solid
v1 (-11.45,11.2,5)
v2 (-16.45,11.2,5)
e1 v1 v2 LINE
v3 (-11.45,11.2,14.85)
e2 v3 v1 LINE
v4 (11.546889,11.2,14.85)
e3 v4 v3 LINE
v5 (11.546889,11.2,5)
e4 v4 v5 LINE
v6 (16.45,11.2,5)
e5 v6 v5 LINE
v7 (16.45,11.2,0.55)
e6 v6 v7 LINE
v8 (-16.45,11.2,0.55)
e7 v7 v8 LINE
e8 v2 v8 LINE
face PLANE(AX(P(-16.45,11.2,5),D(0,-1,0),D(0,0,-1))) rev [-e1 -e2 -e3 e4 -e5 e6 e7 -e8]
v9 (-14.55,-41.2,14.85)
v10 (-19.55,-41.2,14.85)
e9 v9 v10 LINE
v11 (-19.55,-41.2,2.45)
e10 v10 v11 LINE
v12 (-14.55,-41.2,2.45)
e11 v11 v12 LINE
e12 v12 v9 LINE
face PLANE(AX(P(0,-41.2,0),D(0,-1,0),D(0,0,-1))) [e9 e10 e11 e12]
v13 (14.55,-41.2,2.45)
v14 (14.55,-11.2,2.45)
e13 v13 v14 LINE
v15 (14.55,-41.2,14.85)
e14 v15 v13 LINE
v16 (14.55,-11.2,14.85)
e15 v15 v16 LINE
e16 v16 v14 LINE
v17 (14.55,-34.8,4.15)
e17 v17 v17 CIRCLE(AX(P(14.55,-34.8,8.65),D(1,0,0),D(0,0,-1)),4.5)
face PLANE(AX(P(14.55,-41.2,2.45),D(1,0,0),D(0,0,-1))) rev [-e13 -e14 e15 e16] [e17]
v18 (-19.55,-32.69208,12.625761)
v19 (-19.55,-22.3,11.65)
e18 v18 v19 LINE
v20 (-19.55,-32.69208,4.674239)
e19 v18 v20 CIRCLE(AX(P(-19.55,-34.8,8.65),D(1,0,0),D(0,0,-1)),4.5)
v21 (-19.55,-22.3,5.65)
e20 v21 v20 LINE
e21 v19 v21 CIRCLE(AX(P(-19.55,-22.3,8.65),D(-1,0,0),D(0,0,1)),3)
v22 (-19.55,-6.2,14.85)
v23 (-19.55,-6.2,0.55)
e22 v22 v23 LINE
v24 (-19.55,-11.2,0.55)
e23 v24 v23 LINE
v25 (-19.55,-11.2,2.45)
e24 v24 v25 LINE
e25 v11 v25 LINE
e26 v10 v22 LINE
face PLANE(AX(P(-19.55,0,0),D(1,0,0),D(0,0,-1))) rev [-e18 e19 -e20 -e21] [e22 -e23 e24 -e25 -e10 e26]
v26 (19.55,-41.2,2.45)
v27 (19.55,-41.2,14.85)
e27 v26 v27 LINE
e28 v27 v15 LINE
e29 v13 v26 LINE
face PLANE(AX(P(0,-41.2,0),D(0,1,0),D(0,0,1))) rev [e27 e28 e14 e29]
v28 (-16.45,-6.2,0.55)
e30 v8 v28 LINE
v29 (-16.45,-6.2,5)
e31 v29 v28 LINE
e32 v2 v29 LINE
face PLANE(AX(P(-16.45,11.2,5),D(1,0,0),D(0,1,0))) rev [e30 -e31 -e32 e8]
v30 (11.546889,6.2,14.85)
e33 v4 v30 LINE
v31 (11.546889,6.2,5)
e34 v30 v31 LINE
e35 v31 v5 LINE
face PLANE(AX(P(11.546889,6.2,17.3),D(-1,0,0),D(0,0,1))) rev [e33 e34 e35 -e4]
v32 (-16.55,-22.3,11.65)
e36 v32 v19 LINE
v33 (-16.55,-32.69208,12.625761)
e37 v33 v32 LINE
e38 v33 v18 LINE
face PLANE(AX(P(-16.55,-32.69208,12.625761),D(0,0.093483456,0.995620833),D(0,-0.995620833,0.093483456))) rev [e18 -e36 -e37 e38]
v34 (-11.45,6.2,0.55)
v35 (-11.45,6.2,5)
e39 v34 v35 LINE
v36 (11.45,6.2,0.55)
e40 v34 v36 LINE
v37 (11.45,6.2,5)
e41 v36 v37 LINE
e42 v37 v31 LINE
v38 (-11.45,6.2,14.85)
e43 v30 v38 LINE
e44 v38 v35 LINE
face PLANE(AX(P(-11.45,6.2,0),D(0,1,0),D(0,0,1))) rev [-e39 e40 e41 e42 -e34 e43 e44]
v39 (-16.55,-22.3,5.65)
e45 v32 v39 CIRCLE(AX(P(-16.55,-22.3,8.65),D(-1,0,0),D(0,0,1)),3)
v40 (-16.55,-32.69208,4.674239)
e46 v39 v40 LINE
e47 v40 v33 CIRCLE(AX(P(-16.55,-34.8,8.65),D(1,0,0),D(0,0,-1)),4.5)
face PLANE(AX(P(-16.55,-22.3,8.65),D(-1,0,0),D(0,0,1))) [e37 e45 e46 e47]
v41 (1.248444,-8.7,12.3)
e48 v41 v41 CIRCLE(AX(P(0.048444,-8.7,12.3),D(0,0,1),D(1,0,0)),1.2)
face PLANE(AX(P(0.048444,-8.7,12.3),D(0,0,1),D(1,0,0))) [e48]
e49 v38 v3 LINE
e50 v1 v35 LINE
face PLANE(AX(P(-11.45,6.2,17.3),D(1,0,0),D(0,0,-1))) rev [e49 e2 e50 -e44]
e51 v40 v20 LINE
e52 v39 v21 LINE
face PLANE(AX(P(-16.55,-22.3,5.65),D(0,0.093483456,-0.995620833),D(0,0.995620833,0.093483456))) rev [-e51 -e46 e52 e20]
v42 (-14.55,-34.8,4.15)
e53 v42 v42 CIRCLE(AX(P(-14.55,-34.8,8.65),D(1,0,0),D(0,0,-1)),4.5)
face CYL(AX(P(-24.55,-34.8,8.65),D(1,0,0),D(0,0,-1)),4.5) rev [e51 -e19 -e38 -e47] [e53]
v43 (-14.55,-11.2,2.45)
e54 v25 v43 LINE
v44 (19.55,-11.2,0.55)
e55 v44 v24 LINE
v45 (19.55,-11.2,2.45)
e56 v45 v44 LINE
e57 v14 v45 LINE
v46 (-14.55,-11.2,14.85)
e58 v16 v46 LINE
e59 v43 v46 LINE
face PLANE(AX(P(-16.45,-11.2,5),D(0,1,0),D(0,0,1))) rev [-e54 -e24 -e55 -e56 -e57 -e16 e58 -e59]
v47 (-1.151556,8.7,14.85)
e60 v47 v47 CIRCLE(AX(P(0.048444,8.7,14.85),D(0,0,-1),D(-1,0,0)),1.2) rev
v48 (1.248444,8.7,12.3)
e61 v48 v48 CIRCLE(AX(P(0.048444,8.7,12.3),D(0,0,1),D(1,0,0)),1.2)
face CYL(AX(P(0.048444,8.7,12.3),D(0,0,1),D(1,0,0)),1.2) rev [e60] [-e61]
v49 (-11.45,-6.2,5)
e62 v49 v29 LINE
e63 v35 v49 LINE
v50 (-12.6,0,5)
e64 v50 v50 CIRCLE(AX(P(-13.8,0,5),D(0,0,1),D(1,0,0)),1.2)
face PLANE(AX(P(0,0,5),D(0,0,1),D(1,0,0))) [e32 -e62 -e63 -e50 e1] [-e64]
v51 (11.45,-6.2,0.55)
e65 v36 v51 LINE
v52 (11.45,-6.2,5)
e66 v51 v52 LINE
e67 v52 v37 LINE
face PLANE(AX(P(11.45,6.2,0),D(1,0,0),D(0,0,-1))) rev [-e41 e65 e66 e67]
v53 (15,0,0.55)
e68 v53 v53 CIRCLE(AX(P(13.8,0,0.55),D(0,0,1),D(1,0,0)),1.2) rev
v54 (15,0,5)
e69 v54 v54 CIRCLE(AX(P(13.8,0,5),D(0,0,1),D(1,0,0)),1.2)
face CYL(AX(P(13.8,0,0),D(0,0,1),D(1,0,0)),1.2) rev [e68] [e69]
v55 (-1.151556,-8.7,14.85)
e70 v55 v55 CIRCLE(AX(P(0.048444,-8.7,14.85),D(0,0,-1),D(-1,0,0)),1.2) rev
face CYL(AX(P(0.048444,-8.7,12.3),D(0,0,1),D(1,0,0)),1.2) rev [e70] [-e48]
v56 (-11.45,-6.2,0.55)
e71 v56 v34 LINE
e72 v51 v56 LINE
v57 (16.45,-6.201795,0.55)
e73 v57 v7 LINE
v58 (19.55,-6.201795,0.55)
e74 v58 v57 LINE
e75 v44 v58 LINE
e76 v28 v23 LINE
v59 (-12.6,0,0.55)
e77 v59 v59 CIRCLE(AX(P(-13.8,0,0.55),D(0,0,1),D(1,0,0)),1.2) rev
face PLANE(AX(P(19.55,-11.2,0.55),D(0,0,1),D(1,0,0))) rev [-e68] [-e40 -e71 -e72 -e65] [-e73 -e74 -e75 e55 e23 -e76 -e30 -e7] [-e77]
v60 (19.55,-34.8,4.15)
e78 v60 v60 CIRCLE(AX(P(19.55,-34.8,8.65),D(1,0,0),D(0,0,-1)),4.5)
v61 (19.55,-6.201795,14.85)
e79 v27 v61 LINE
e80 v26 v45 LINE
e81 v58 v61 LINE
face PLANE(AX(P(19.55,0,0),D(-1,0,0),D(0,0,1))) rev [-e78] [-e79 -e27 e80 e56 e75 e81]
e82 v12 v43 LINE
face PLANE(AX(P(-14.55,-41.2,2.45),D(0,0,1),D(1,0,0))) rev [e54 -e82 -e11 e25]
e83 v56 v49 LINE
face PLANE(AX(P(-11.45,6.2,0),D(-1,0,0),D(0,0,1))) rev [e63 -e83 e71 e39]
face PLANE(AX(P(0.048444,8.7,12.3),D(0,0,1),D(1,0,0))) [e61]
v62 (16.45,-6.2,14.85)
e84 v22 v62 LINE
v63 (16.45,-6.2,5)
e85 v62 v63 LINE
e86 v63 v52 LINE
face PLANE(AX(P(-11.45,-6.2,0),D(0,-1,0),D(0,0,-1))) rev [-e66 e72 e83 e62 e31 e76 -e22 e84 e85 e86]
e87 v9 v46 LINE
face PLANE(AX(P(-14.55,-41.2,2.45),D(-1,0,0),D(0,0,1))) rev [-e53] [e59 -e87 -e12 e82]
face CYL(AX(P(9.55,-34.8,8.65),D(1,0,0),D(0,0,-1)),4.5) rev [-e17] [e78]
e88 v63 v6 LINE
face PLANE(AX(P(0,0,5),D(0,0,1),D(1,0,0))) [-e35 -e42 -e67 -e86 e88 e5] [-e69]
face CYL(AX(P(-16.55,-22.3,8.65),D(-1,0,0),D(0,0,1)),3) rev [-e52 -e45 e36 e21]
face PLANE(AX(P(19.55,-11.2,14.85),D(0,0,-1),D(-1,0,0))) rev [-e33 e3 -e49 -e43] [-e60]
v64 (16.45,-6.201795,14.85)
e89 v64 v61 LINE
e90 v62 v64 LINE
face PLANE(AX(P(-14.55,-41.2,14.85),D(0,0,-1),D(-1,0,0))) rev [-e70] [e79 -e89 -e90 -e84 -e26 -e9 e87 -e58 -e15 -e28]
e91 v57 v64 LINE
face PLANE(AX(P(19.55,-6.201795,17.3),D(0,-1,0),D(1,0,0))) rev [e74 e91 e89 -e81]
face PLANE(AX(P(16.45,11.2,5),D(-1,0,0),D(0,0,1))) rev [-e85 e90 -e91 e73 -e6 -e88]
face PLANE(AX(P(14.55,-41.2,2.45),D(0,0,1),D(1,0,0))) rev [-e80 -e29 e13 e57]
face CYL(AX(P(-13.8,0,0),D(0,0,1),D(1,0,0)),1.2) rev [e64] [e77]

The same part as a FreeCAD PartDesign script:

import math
import FreeCAD as App
import Part
import Sketcher

V = App.Vector


def add_polygon(sketch, points):
    """Adds a closed chain of lines whose ends are joined by coincident constraints."""
    first, n = sketch.GeometryCount, len(points)
    for a, b in zip(points, points[1:] + points[:1]):
        sketch.addGeometry(Part.LineSegment(App.Vector(*a, 0), App.Vector(*b, 0)), False)
    for i in range(n):
        sketch.addConstraint(Sketcher.Constraint("Coincident", first + i, 2, first + (i + 1) % n, 1))

doc = App.newDocument("Part")
body = doc.addObject("PartDesign::Body", "Body")

sketch1 = body.newObject("Sketcher::SketchObject", "Sketch")
sketch1.AttachmentSupport = (doc.getObject("XY_Plane"), [""])
sketch1.MapMode = "FlatFace"
add_polygon(sketch1, [(-16.45, 11.2), (-16.45, -11.2), (16.45, -11.2), (16.45, 11.2)])
sketch1.addConstraint(Sketcher.Constraint("Vertical", 0))
sketch1.addConstraint(Sketcher.Constraint("Horizontal", 1))
sketch1.addConstraint(Sketcher.Constraint("Vertical", 2))
sketch1.addConstraint(Sketcher.Constraint("Horizontal", 3))
sketch1.addConstraint(Sketcher.Constraint("Symmetric", 0, 2, 2, 2, -1, 1))
sketch1.addConstraint(Sketcher.Constraint("DistanceX", 1, 1, 1, 2, 32.9))
sketch1.addConstraint(Sketcher.Constraint("DistanceY", 0, 2, 0, 1, 22.4))
pad1 = body.newObject("PartDesign::Pad", "Pad")
pad1.Profile = sketch1
pad1.Length = 5

sketch2 = body.newObject("Sketcher::SketchObject", "Sketch001")
sketch2.AttachmentSupport = (doc.getObject("XY_Plane"), [""])
sketch2.MapMode = "FlatFace"
sketch2.AttachmentOffset = App.Placement(V(0, 0, 5), App.Rotation())
sketch2.addGeometry(Part.Circle(V(13.8, 0, 0), V(0, 0, 1), 1.2), False)
sketch2.addGeometry(Part.Circle(V(-13.8, 0, 0), V(0, 0, 1), 1.2), False)
add_polygon(sketch2, [(-11.45, 6.2), (-11.45, -6.2), (11.45, -6.2), (11.45, 6.2)])
sketch2.addConstraint(Sketcher.Constraint("Vertical", 2))
sketch2.addConstraint(Sketcher.Constraint("Horizontal", 3))
sketch2.addConstraint(Sketcher.Constraint("Vertical", 4))
sketch2.addConstraint(Sketcher.Constraint("Horizontal", 5))
sketch2.addConstraint(Sketcher.Constraint("Equal", 0, 1))
sketch2.addConstraint(Sketcher.Constraint("Symmetric", 0, 3, 1, 3, -1, 1))
sketch2.addConstraint(Sketcher.Constraint("Symmetric", 2, 2, 4, 2, -1, 1))
sketch2.addConstraint(Sketcher.Constraint("PointOnObject", 0, 3, -1))
sketch2.addConstraint(Sketcher.Constraint("Diameter", 0, 2.4))
sketch2.addConstraint(Sketcher.Constraint("DistanceX", 3, 1, 3, 2, 22.9))
sketch2.addConstraint(Sketcher.Constraint("DistanceY", 2, 2, 2, 1, 12.4))
sketch2.addConstraint(Sketcher.Constraint("DistanceX", -1, 1, 0, 3, 13.8))
pocket1 = body.newObject("PartDesign::Pocket", "Pocket")
pocket1.Profile = sketch2
pocket1.Length = 5

sketch3 = body.newObject("Sketcher::SketchObject", "Sketch002")
sketch3.AttachmentSupport = (doc.getObject("XY_Plane"), [""])
sketch3.MapMode = "FlatFace"
sketch3.AttachmentOffset = App.Placement(V(0, 0, 5), App.Rotation())
add_polygon(sketch3, [(-11.45, 11.2), (-11.45, 6.2), (11.546889, 6.2), (11.546889, 11.2)])
add_polygon(sketch3, [(-11.45, -6.2), (-11.45, -11.2), (11.546889, -11.2), (11.546889, -6.2)])
sketch3.addConstraint(Sketcher.Constraint("Vertical", 0))
sketch3.addConstraint(Sketcher.Constraint("Horizontal", 1))
sketch3.addConstraint(Sketcher.Constraint("Vertical", 2))
sketch3.addConstraint(Sketcher.Constraint("Horizontal", 3))
sketch3.addConstraint(Sketcher.Constraint("Vertical", 4))
sketch3.addConstraint(Sketcher.Constraint("Horizontal", 5))
sketch3.addConstraint(Sketcher.Constraint("Vertical", 6))
sketch3.addConstraint(Sketcher.Constraint("Horizontal", 7))
sketch3.addConstraint(Sketcher.Constraint("Symmetric", 3, 2, 4, 2, -1))
sketch3.addConstraint(Sketcher.Constraint("Symmetric", 1, 2, 6, 2, -1))
sketch3.addConstraint(Sketcher.Constraint("DistanceY", 0, 2, 0, 1, 5.0))
sketch3.addConstraint(Sketcher.Constraint("DistanceY", -1, 1, 0, 2, 6.2))
sketch3.addConstraint(Sketcher.Constraint("DistanceX", 0, 2, -1, 1, 11.45))
sketch3.addConstraint(Sketcher.Constraint("DistanceX", 1, 1, 1, 2, 22.996889))
pad2 = body.newObject("PartDesign::Pad", "Pad001")
pad2.Profile = sketch3
pad2.Length = 12.3

sketch4 = body.newObject("Sketcher::SketchObject", "Sketch003")
sketch4.AttachmentSupport = (doc.getObject("XY_Plane"), [""])
sketch4.MapMode = "FlatFace"
sketch4.AttachmentOffset = App.Placement(V(0, 0, 17.3), App.Rotation())
sketch4.addGeometry(Part.Circle(V(0.048444, 8.7, 0), V(0, 0, 1), 1.2), False)
sketch4.addGeometry(Part.Circle(V(0.048444, -8.7, 0), V(0, 0, 1), 1.2), False)
sketch4.addConstraint(Sketcher.Constraint("Equal", 0, 1))
sketch4.addConstraint(Sketcher.Constraint("Symmetric", 0, 3, 1, 3, -1))
sketch4.addConstraint(Sketcher.Constraint("Diameter", 0, 2.4))
sketch4.addConstraint(Sketcher.Constraint("DistanceY", -1, 1, 0, 3, 8.7))
sketch4.addConstraint(Sketcher.Constraint("DistanceX", -1, 1, 0, 3, 0.048444))
pocket2 = body.newObject("PartDesign::Pocket", "Pocket001")
pocket2.Profile = sketch4
pocket2.Length = 5

sketch5 = body.newObject("Sketcher::SketchObject", "Sketch004")
sketch5.AttachmentSupport = (doc.getObject("XY_Plane"), [""])
sketch5.MapMode = "FlatFace"
sketch5.AttachmentOffset = App.Placement(V(0, 0, 5), App.Rotation())
add_polygon(sketch5, [(-16.45, -6.2), (-16.45, -11.2), (-11.45, -11.2), (-11.45, -6.2)])
add_polygon(sketch5, [(11.546889, -6.2), (11.546889, -11.2), (16.45, -11.2), (16.45, -6.2)])
sketch5.addConstraint(Sketcher.Constraint("Vertical", 0))
sketch5.addConstraint(Sketcher.Constraint("Horizontal", 1))
sketch5.addConstraint(Sketcher.Constraint("Vertical", 2))
sketch5.addConstraint(Sketcher.Constraint("Horizontal", 3))
sketch5.addConstraint(Sketcher.Constraint("Vertical", 4))
sketch5.addConstraint(Sketcher.Constraint("Horizontal", 5))
sketch5.addConstraint(Sketcher.Constraint("Vertical", 6))
sketch5.addConstraint(Sketcher.Constraint("Horizontal", 7))
sketch5.addConstraint(Sketcher.Constraint("Symmetric", 0, 2, 5, 2, -2))
sketch5.addConstraint(Sketcher.Constraint("Horizontal", 3, 2, 6, 2))
sketch5.addConstraint(Sketcher.Constraint("Equal", 3, 0))
sketch5.addConstraint(Sketcher.Constraint("DistanceX", 1, 1, 1, 2, 5.0))
sketch5.addConstraint(Sketcher.Constraint("DistanceY", 0, 2, -1, 1, 11.2))
sketch5.addConstraint(Sketcher.Constraint("DistanceX", 1, 2, 5, 2, 27.9))
sketch5.addConstraint(Sketcher.Constraint("DistanceX", 5, 1, 5, 2, 4.903111))
pad3 = body.newObject("PartDesign::Pad", "Pad002")
pad3.Profile = sketch5
pad3.Length = 12.3

sketch6 = body.newObject("Sketcher::SketchObject", "Sketch005")
sketch6.AttachmentSupport = (doc.getObject("YZ_Plane"), [""])
sketch6.MapMode = "FlatFace"
sketch6.AttachmentOffset = App.Placement(V(0, 0, 16.45), App.Rotation())
add_polygon(sketch6, [(-6.201795, 17.3), (-11.2, 17.3), (-11.2, 0), (-6.201795, 0)])
sketch6.addConstraint(Sketcher.Constraint("Horizontal", 0))
sketch6.addConstraint(Sketcher.Constraint("Vertical", 1))
sketch6.addConstraint(Sketcher.Constraint("Horizontal", 2))
sketch6.addConstraint(Sketcher.Constraint("Vertical", 3))
sketch6.addConstraint(Sketcher.Constraint("PointOnObject", 1, 2, -1))
sketch6.addConstraint(Sketcher.Constraint("DistanceY", 1, 2, 1, 1, 17.3))
sketch6.addConstraint(Sketcher.Constraint("DistanceX", 0, 2, -1, 1, 11.2))
sketch6.addConstraint(Sketcher.Constraint("DistanceX", 0, 2, 0, 1, 4.998205))
pad4 = body.newObject("PartDesign::Pad", "Pad003")
pad4.Profile = sketch6
pad4.Length = 3.1

sketch7 = body.newObject("Sketcher::SketchObject", "Sketch006")
sketch7.AttachmentSupport = (doc.getObject("YZ_Plane"), [""])
sketch7.MapMode = "FlatFace"
sketch7.AttachmentOffset = App.Placement(V(0, 0, -16.45), App.Rotation())
add_polygon(sketch7, [(-6.2, 0), (-11.2, 0), (-11.2, 17.3), (-6.2, 17.3)])
sketch7.addConstraint(Sketcher.Constraint("Horizontal", 0))
sketch7.addConstraint(Sketcher.Constraint("Vertical", 1))
sketch7.addConstraint(Sketcher.Constraint("Horizontal", 2))
sketch7.addConstraint(Sketcher.Constraint("Vertical", 3))
sketch7.addConstraint(Sketcher.Constraint("PointOnObject", 0, 2, -1))
sketch7.addConstraint(Sketcher.Constraint("DistanceX", 0, 2, 0, 1, 5.0))
sketch7.addConstraint(Sketcher.Constraint("DistanceY", 1, 1, 1, 2, 17.3))
sketch7.addConstraint(Sketcher.Constraint("DistanceX", 0, 2, -1, 1, 11.2))
pad5 = body.newObject("PartDesign::Pad", "Pad004")
pad5.Profile = sketch7
pad5.Length = 3.1
pad5.Reversed = True

sketch8 = body.newObject("Sketcher::SketchObject", "Sketch007")
sketch8.AttachmentSupport = (doc.getObject("XZ_Plane"), [""])
sketch8.MapMode = "FlatFace"
sketch8.AttachmentOffset = App.Placement(V(0, 0, 11.2), App.Rotation())
add_polygon(sketch8, [(-19.55, 14.85), (-19.55, 2.45), (-14.55, 2.45), (-14.55, 14.85)])
add_polygon(sketch8, [(14.55, 14.85), (14.55, 2.45), (19.55, 2.45), (19.55, 14.85)])
sketch8.addConstraint(Sketcher.Constraint("Vertical", 0))
sketch8.addConstraint(Sketcher.Constraint("Horizontal", 1))
sketch8.addConstraint(Sketcher.Constraint("Vertical", 2))
sketch8.addConstraint(Sketcher.Constraint("Horizontal", 3))
sketch8.addConstraint(Sketcher.Constraint("Vertical", 4))
sketch8.addConstraint(Sketcher.Constraint("Horizontal", 5))
sketch8.addConstraint(Sketcher.Constraint("Vertical", 6))
sketch8.addConstraint(Sketcher.Constraint("Horizontal", 7))
sketch8.addConstraint(Sketcher.Constraint("Symmetric", 1, 2, 4, 2, -2))
sketch8.addConstraint(Sketcher.Constraint("Symmetric", 3, 2, 6, 2, -2))
sketch8.addConstraint(Sketcher.Constraint("DistanceX", 1, 1, 1, 2, 5.0))
sketch8.addConstraint(Sketcher.Constraint("DistanceY", 0, 2, 0, 1, 12.4))
sketch8.addConstraint(Sketcher.Constraint("DistanceX", 1, 2, 4, 2, 29.1))
sketch8.addConstraint(Sketcher.Constraint("DistanceY", -1, 1, 0, 2, 2.45))
pad6 = body.newObject("PartDesign::Pad", "Pad005")
pad6.Profile = sketch8
pad6.Length = 30

sketch9 = body.newObject("Sketcher::SketchObject", "Sketch008")
sketch9.AttachmentSupport = (doc.getObject("YZ_Plane"), [""])
sketch9.MapMode = "FlatFace"
sketch9.AttachmentOffset = App.Placement(V(0, 0, -19.55), App.Rotation())
sketch9.addGeometry(Part.Circle(V(-34.8, 8.65, 0), V(0, 0, 1), 4.5), False)
sketch9.addConstraint(Sketcher.Constraint("Diameter", 0, 9.0))
sketch9.addConstraint(Sketcher.Constraint("DistanceX", 0, 3, -1, 1, 34.8))
sketch9.addConstraint(Sketcher.Constraint("DistanceY", -1, 1, 0, 3, 8.65))
pocket3 = body.newObject("PartDesign::Pocket", "Pocket002")
pocket3.Profile = sketch9
pocket3.Length = 30
pocket3.Reversed = True

sketch10 = body.newObject("Sketcher::SketchObject", "Sketch009")
sketch10.AttachmentSupport = (doc.getObject("YZ_Plane"), [""])
sketch10.MapMode = "FlatFace"
sketch10.AttachmentOffset = App.Placement(V(0, 0, 19.55), App.Rotation())
sketch10.addGeometry(Part.Circle(V(-34.8, 8.65, 0), V(0, 0, 1), 4.5), False)
sketch10.addConstraint(Sketcher.Constraint("Diameter", 0, 9.0))
sketch10.addConstraint(Sketcher.Constraint("DistanceX", 0, 3, -1, 1, 34.8))
sketch10.addConstraint(Sketcher.Constraint("DistanceY", -1, 1, 0, 3, 8.65))
pocket4 = body.newObject("PartDesign::Pocket", "Pocket003")
pocket4.Profile = sketch10
pocket4.Length = 30

sketch11 = body.newObject("Sketcher::SketchObject", "Sketch010")
sketch11.AttachmentSupport = (doc.getObject("XZ_Plane"), [""])
sketch11.MapMode = "FlatFace"
sketch11.AttachmentOffset = App.Placement(V(0, 0, 11.2), App.Rotation())
add_polygon(sketch11, [(14.55, 14.85), (14.55, 2.45), (19.55, 2.45), (19.55, 14.85)])
add_polygon(sketch11, [(-19.55, 14.85), (-19.55, 2.45), (-14.55, 2.45), (-14.55, 14.85)])
sketch11.addConstraint(Sketcher.Constraint("Vertical", 0))
sketch11.addConstraint(Sketcher.Constraint("Horizontal", 1))
sketch11.addConstraint(Sketcher.Constraint("Vertical", 2))
sketch11.addConstraint(Sketcher.Constraint("Horizontal", 3))
sketch11.addConstraint(Sketcher.Constraint("Vertical", 4))
sketch11.addConstraint(Sketcher.Constraint("Horizontal", 5))
sketch11.addConstraint(Sketcher.Constraint("Vertical", 6))
sketch11.addConstraint(Sketcher.Constraint("Horizontal", 7))
sketch11.addConstraint(Sketcher.Constraint("Symmetric", 1, 2, 4, 2, -2))
sketch11.addConstraint(Sketcher.Constraint("Symmetric", 3, 2, 6, 2, -2))
sketch11.addConstraint(Sketcher.Constraint("DistanceX", 1, 1, 1, 2, 5.0))
sketch11.addConstraint(Sketcher.Constraint("DistanceY", 0, 2, 0, 1, 12.4))
sketch11.addConstraint(Sketcher.Constraint("DistanceX", 4, 2, 0, 2, 34.1))
sketch11.addConstraint(Sketcher.Constraint("DistanceY", -1, 1, 0, 2, 2.45))
pad7 = body.newObject("PartDesign::Pad", "Pad006")
pad7.Profile = sketch11
pad7.Length = 30

sketch12 = body.newObject("Sketcher::SketchObject", "Sketch011")
sketch12.AttachmentSupport = (doc.getObject("YZ_Plane"), [""])
sketch12.MapMode = "FlatFace"
sketch12.AttachmentOffset = App.Placement(V(0, 0, 19.55), App.Rotation())
sketch12.addGeometry(Part.Circle(V(-34.8, 8.65, 0), V(0, 0, 1), 4.5), False)
sketch12.addConstraint(Sketcher.Constraint("Diameter", 0, 9.0))
sketch12.addConstraint(Sketcher.Constraint("DistanceX", 0, 3, -1, 1, 34.8))
sketch12.addConstraint(Sketcher.Constraint("DistanceY", -1, 1, 0, 3, 8.65))
pocket5 = body.newObject("PartDesign::Pocket", "Pocket004")
pocket5.Profile = sketch12
pocket5.Length = 10

sketch13 = body.newObject("Sketcher::SketchObject", "Sketch012")
sketch13.AttachmentSupport = (doc.getObject("YZ_Plane"), [""])
sketch13.MapMode = "FlatFace"
sketch13.AttachmentOffset = App.Placement(V(0, 0, -14.55), App.Rotation())
sketch13.addGeometry(Part.Circle(V(-34.8, 8.65, 0), V(0, 0, 1), 4.5), False)
sketch13.addConstraint(Sketcher.Constraint("Diameter", 0, 9.0))
sketch13.addConstraint(Sketcher.Constraint("DistanceX", 0, 3, -1, 1, 34.8))
sketch13.addConstraint(Sketcher.Constraint("DistanceY", -1, 1, 0, 3, 8.65))
pocket6 = body.newObject("PartDesign::Pocket", "Pocket005")
pocket6.Profile = sketch13
pocket6.Length = 10

sketch14 = body.newObject("Sketcher::SketchObject", "Sketch013")
sketch14.AttachmentSupport = (doc.getObject("YZ_Plane"), [""])
sketch14.MapMode = "FlatFace"
sketch14.AttachmentOffset = App.Placement(V(0, 0, -19.55), App.Rotation())
sketch14.addGeometry(Part.LineSegment(V(-22.3, 5.65, 0), V(-32.69208, 4.674239, 0)), False)
sketch14.addGeometry(Part.ArcOfCircle(Part.Circle(V(-34.8, 8.65, 0), V(0, 0, 1), 4.5), math.radians(-62.067779), math.radians(62.067779)), False)
sketch14.addGeometry(Part.LineSegment(V(-32.69208, 12.625761, 0), V(-22.3, 11.65, 0)), False)
sketch14.addGeometry(Part.ArcOfCircle(Part.Circle(V(-22.3, 8.65, 0), V(0, 0, 1), 3), math.radians(-90), math.radians(90)), False)
sketch14.addConstraint(Sketcher.Constraint("Coincident", 0, 2, 1, 1))
sketch14.addConstraint(Sketcher.Constraint("Coincident", 1, 2, 2, 1))
sketch14.addConstraint(Sketcher.Constraint("Coincident", 2, 2, 3, 2))
sketch14.addConstraint(Sketcher.Constraint("Coincident", 3, 1, 0, 1))
sketch14.addConstraint(Sketcher.Constraint("Horizontal", 1, 3, 3, 3))
sketch14.addConstraint(Sketcher.Constraint("Vertical", 0, 2, 1, 2))
sketch14.addConstraint(Sketcher.Constraint("Vertical", 3, 3, 2, 2))
sketch14.addConstraint(Sketcher.Constraint("Vertical", 2, 2, 3, 1))
sketch14.addConstraint(Sketcher.Constraint("Radius", 3, 3.0))
sketch14.addConstraint(Sketcher.Constraint("Radius", 1, 4.5))
sketch14.addConstraint(Sketcher.Constraint("DistanceX", 1, 3, -1, 1, 34.8))
sketch14.addConstraint(Sketcher.Constraint("DistanceX", 3, 3, -1, 1, 22.3))
sketch14.addConstraint(Sketcher.Constraint("DistanceY", -1, 1, 1, 3, 8.65))
sketch14.addConstraint(Sketcher.Constraint("Distance", 0, 10.437788))
pocket7 = body.newObject("PartDesign::Pocket", "Pocket006")
pocket7.Profile = sketch14
pocket7.Length = 3
pocket7.Reversed = True

sketch15 = body.newObject("Sketcher::SketchObject", "Sketch014")
sketch15.AttachmentSupport = (doc.getObject("YZ_Plane"), [""])
sketch15.MapMode = "FlatFace"
sketch15.AttachmentOffset = App.Placement(V(0, 0, -19.55), App.Rotation())
add_polygon(sketch15, [(11.2, 14.85), (-11.2, 14.85), (-11.2, 17.3), (11.2, 17.3)])
add_polygon(sketch15, [(11.2, 0), (-11.2, 0), (-11.2, 0.55), (11.2, 0.55)])
sketch15.addConstraint(Sketcher.Constraint("Horizontal", 0))
sketch15.addConstraint(Sketcher.Constraint("Vertical", 1))
sketch15.addConstraint(Sketcher.Constraint("Horizontal", 2))
sketch15.addConstraint(Sketcher.Constraint("Vertical", 3))
sketch15.addConstraint(Sketcher.Constraint("Horizontal", 4))
sketch15.addConstraint(Sketcher.Constraint("Vertical", 5))
sketch15.addConstraint(Sketcher.Constraint("Horizontal", 6))
sketch15.addConstraint(Sketcher.Constraint("Vertical", 7))
sketch15.addConstraint(Sketcher.Constraint("Symmetric", 4, 2, 7, 2, -1, 1))
sketch15.addConstraint(Sketcher.Constraint("Vertical", 1, 2, 4, 2))
sketch15.addConstraint(Sketcher.Constraint("Vertical", 3, 2, 6, 2))
sketch15.addConstraint(Sketcher.Constraint("DistanceX", 0, 2, 0, 1, 22.4))
sketch15.addConstraint(Sketcher.Constraint("DistanceY", 1, 1, 1, 2, 2.45))
sketch15.addConstraint(Sketcher.Constraint("DistanceY", 5, 1, 5, 2, 0.55))
sketch15.addConstraint(Sketcher.Constraint("DistanceY", -1, 1, 1, 2, 17.3))
pocket8 = body.newObject("PartDesign::Pocket", "Pocket007")
pocket8.Profile = sketch15
pocket8.Type = "ThroughAll"
pocket8.Reversed = True

doc.recompute()
